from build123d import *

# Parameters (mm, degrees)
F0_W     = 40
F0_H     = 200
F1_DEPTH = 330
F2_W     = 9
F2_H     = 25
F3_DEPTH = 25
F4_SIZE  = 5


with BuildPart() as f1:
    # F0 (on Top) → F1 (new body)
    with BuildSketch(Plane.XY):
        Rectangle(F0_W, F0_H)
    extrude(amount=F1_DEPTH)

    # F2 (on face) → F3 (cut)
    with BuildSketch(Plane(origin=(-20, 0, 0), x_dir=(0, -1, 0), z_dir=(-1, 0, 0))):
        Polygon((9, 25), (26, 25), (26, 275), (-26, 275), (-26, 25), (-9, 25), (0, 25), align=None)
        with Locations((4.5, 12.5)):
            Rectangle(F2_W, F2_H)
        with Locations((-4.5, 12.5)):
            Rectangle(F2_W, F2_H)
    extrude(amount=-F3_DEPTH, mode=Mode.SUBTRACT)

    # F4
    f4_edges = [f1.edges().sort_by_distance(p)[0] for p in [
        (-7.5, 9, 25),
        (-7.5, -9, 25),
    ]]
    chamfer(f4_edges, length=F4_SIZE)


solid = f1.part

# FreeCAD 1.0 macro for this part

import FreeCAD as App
import Part
import Sketcher
from FreeCAD import Vector
Q = App.Units.Quantity


def edges_at(feature, points):
    """Names of the edges that pass closest to the given points."""
    edges = feature.Shape.Edges
    near = lambda p: min(range(len(edges)), key=lambda i: edges[i].distToShape(Part.Vertex(*p))[0])
    return sorted({f"Edge{near(p) + 1}" for p in points})

doc = App.newDocument("Part")
body = doc.addObject("PartDesign::Body", "Body")

sketch1 = doc.addObject("Sketcher::SketchObject", "Sketch")
body.addObject(sketch1)
sketch1.AttachmentSupport = (doc.XY_Plane, [""])
sketch1.MapMode = "FlatFace"
sketch1.addGeometry(Part.LineSegment(Vector(-20, 100, 0), Vector(-20, -100, 0)), False)
sketch1.addGeometry(Part.LineSegment(Vector(-20, -100, 0), Vector(20, -100, 0)), False)
sketch1.addGeometry(Part.LineSegment(Vector(20, -100, 0), Vector(20, 100, 0)), False)
sketch1.addGeometry(Part.LineSegment(Vector(20, 100, 0), Vector(-20, 100, 0)), False)
sketch1.addConstraint(Sketcher.Constraint("Coincident", 0, 2, 1, 1))
sketch1.addConstraint(Sketcher.Constraint("Coincident", 1, 2, 2, 1))
sketch1.addConstraint(Sketcher.Constraint("Coincident", 2, 2, 3, 1))
sketch1.addConstraint(Sketcher.Constraint("Coincident", 3, 2, 0, 1))
sketch1.addConstraint(Sketcher.Constraint("Vertical", 0))
sketch1.addConstraint(Sketcher.Constraint("Horizontal", 1))
sketch1.addConstraint(Sketcher.Constraint("Vertical", 2))
sketch1.addConstraint(Sketcher.Constraint("Horizontal", 3))
sketch1.addConstraint(Sketcher.Constraint("Symmetric", 0, 2, 2, 2, -1, 1))
sketch1.addConstraint(Sketcher.Constraint("DistanceX", 1, 1, 1, 2, Q("40 mm")))
sketch1.addConstraint(Sketcher.Constraint("DistanceY", 0, 2, 0, 1, Q("200 mm")))
pad1 = doc.addObject("PartDesign::Pad", "Pad")
body.addObject(pad1)
pad1.Profile = sketch1
pad1.Length = 330

sketch2 = doc.addObject("Sketcher::SketchObject", "Sketch001")
body.addObject(sketch2)
sketch2.AttachmentSupport = (doc.YZ_Plane, [""])
sketch2.MapMode = "FlatFace"
sketch2.AttachmentOffset = App.Placement(Vector(0, 0, -20), App.Rotation())
sketch2.addGeometry(Part.LineSegment(Vector(-26, 25, 0), Vector(-26, 275, 0)), False)
sketch2.addGeometry(Part.LineSegment(Vector(-26, 275, 0), Vector(26, 275, 0)), False)
sketch2.addGeometry(Part.LineSegment(Vector(26, 275, 0), Vector(26, 25, 0)), False)
sketch2.addGeometry(Part.LineSegment(Vector(26, 25, 0), Vector(9, 25, 0)), False)
sketch2.addGeometry(Part.LineSegment(Vector(9, 25, 0), Vector(9, 0, 0)), False)
sketch2.addGeometry(Part.LineSegment(Vector(9, 0, 0), Vector(-9, 0, 0)), False)
sketch2.addGeometry(Part.LineSegment(Vector(-9, 0, 0), Vector(-9, 25, 0)), False)
sketch2.addGeometry(Part.LineSegment(Vector(-9, 25, 0), Vector(-26, 25, 0)), False)
sketch2.addConstraint(Sketcher.Constraint("Coincident", 0, 2, 1, 1))
sketch2.addConstraint(Sketcher.Constraint("Coincident", 1, 2, 2, 1))
sketch2.addConstraint(Sketcher.Constraint("Coincident", 2, 2, 3, 1))
sketch2.addConstraint(Sketcher.Constraint("Coincident", 3, 2, 4, 1))
sketch2.addConstraint(Sketcher.Constraint("Coincident", 4, 2, 5, 1))
sketch2.addConstraint(Sketcher.Constraint("Coincident", 5, 2, 6, 1))
sketch2.addConstraint(Sketcher.Constraint("Coincident", 6, 2, 7, 1))
sketch2.addConstraint(Sketcher.Constraint("Coincident", 7, 2, 0, 1))
sketch2.addConstraint(Sketcher.Constraint("Vertical", 0))
sketch2.addConstraint(Sketcher.Constraint("Horizontal", 1))
sketch2.addConstraint(Sketcher.Constraint("Vertical", 2))
sketch2.addConstraint(Sketcher.Constraint("Horizontal", 3))
sketch2.addConstraint(Sketcher.Constraint("Vertical", 4))
sketch2.addConstraint(Sketcher.Constraint("Horizontal", 5))
sketch2.addConstraint(Sketcher.Constraint("Vertical", 6))
sketch2.addConstraint(Sketcher.Constraint("Horizontal", 7))
sketch2.addConstraint(Sketcher.Constraint("Symmetric", 4, 2, 5, 2, -1, 1))
sketch2.addConstraint(Sketcher.Constraint("Symmetric", 2, 2, 7, 2, -2))
sketch2.addConstraint(Sketcher.Constraint("DistanceX", 1, 1, 1, 2, Q("52 mm")))
sketch2.addConstraint(Sketcher.Constraint("DistanceX", 3, 2, 3, 1, Q("17 mm")))
sketch2.addConstraint(Sketcher.Constraint("DistanceY", 0, 1, 0, 2, Q("250 mm")))
sketch2.addConstraint(Sketcher.Constraint("DistanceY", 4, 2, 4, 1, Q("25 mm")))
pocket1 = doc.addObject("PartDesign::Pocket", "Pocket")
body.addObject(pocket1)
pocket1.Profile = sketch2
pocket1.Length = 25
pocket1.Reversed = True
doc.recompute()

chamfer = doc.addObject("PartDesign::Chamfer", "Chamfer")
body.addObject(chamfer)
chamfer.Base = (pocket1, edges_at(pocket1, [(-7.5, 9, 25), (-7.5, -9, 25)]))
chamfer.Size = 5

doc.recompute()
